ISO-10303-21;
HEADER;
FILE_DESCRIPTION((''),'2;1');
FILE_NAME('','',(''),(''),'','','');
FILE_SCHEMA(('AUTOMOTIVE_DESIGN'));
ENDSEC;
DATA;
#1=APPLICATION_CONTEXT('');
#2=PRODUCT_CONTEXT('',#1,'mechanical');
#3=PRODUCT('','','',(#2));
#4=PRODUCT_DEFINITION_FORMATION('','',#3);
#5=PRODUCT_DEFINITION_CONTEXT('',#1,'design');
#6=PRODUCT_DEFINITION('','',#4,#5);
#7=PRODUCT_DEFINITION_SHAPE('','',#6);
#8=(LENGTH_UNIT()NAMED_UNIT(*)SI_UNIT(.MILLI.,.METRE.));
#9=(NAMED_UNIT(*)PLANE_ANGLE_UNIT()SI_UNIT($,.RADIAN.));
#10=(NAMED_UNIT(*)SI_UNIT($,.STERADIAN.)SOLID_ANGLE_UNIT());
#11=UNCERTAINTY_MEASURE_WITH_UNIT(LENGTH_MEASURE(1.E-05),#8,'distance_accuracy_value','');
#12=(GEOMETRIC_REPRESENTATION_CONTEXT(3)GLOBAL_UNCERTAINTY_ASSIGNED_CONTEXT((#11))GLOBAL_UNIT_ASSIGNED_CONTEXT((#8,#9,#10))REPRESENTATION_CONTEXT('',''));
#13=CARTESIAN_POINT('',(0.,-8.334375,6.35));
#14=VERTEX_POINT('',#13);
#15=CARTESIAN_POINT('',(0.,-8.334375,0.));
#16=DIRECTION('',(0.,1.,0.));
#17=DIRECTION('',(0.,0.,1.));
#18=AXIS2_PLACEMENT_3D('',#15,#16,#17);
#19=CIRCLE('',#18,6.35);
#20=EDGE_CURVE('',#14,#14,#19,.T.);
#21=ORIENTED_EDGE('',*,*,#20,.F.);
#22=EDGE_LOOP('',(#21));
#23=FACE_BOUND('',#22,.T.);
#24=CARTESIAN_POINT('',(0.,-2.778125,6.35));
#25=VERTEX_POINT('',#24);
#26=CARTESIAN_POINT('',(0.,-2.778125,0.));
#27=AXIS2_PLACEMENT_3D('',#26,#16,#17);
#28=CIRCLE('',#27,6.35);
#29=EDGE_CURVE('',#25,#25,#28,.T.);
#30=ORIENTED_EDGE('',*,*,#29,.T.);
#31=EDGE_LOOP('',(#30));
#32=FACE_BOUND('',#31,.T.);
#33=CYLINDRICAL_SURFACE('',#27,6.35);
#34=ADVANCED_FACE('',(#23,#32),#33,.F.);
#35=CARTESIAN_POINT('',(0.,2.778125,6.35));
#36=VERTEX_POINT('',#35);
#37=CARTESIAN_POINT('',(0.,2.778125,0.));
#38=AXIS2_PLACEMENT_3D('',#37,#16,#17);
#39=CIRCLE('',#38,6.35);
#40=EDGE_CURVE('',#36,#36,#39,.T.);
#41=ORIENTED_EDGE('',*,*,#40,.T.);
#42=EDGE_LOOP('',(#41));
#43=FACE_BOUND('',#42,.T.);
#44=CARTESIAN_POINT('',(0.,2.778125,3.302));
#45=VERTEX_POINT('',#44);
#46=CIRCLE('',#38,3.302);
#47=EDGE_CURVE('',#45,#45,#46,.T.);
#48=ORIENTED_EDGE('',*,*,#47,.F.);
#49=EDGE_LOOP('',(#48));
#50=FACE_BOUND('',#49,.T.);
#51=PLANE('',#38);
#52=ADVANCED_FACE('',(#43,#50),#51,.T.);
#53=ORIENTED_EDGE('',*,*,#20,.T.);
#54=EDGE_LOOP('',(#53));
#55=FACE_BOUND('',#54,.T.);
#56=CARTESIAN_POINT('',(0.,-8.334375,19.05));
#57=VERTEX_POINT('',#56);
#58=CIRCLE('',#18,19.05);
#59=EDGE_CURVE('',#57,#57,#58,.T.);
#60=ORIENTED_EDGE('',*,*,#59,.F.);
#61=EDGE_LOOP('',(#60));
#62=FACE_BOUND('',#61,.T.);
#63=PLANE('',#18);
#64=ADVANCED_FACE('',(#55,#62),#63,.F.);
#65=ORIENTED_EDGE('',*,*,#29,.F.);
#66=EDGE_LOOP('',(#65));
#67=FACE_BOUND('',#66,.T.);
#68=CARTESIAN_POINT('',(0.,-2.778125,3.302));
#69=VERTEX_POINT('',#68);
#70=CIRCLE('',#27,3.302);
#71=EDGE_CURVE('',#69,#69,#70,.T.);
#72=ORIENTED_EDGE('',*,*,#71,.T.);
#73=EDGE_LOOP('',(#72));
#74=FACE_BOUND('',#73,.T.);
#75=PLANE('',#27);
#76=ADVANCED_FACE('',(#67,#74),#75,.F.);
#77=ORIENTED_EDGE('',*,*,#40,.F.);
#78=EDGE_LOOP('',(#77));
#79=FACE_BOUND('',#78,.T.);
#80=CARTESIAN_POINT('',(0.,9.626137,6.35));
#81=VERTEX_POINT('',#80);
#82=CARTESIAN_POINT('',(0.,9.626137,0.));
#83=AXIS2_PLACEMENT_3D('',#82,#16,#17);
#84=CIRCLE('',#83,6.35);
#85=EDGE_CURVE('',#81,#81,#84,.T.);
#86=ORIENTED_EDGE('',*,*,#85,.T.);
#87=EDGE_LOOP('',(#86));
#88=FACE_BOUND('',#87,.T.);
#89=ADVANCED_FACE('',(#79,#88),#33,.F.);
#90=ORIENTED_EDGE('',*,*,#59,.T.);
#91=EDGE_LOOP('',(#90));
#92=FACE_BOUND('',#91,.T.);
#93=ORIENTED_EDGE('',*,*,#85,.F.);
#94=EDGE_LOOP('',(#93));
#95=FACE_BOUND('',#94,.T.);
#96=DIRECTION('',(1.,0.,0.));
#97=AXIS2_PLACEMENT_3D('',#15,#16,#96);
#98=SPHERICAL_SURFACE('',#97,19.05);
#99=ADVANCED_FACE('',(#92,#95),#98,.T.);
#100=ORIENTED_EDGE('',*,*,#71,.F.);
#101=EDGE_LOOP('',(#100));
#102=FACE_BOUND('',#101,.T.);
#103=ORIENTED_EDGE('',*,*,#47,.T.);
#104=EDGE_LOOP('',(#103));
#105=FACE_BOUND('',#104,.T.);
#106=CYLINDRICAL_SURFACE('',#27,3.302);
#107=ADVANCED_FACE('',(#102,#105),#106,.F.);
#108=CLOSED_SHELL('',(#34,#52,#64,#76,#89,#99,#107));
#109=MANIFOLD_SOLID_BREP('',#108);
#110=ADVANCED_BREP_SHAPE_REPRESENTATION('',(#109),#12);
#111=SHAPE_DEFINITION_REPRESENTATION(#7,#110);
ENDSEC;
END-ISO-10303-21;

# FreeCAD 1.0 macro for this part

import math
import FreeCAD as App
import Part
import Sketcher
from FreeCAD import Vector
Q = App.Units.Quantity

doc = App.newDocument("Part")
body = doc.addObject("PartDesign::Body", "Body")

# Sketch on XY plane
sketch1 = body.newObject("Sketcher::SketchObject", "Sketch")
sketch1.AttachmentSupport = (doc.getObject("XY_Plane"), [""])
sketch1.MapMode = "FlatFace"
sketch1.addGeometry(Part.LineSegment(Vector(6.3, -2.8, 0), Vector(6.3, -8.3, 0)), False)
sketch1.addGeometry(Part.LineSegment(Vector(6.3, -8.3, 0), Vector(19.1, -8.3, 0)), False)
sketch1.addGeometry(Part.ArcOfCircle(Part.Circle(Vector(0, -8.3, 0), Vector(0, 0, 1), 19), math.radians(0), math.radians(71)), False)
sketch1.addGeometry(Part.LineSegment(Vector(6.3, 9.6, 0), Vector(6.3, 2.8, 0)), False)
sketch1.addGeometry(Part.LineSegment(Vector(6.3, 2.8, 0), Vector(3.3, 2.8, 0)), False)
sketch1.addGeometry(Part.LineSegment(Vector(3.3, 2.8, 0), Vector(3.3, -2.8, 0)), False)
sketch1.addGeometry(Part.LineSegment(Vector(3.3, -2.8, 0), Vector(6.3, -2.8, 0)), False)
sketch1.addConstraint(Sketcher.Constraint("Coincident", 0, 2, 1, 1))
sketch1.addConstraint(Sketcher.Constraint("Coincident", 1, 2, 2, 1))
sketch1.addConstraint(Sketcher.Constraint("Coincident", 2, 2, 3, 1))
sketch1.addConstraint(Sketcher.Constraint("Coincident", 3, 2, 4, 1))
sketch1.addConstraint(Sketcher.Constraint("Coincident", 4, 2, 5, 1))
sketch1.addConstraint(Sketcher.Constraint("Coincident", 5, 2, 6, 1))
sketch1.addConstraint(Sketcher.Constraint("Coincident", 6, 2, 0, 1))
sketch1.addConstraint(Sketcher.Constraint("Vertical", 0))
sketch1.addConstraint(Sketcher.Constraint("Horizontal", 1))
sketch1.addConstraint(Sketcher.Constraint("Vertical", 3))
sketch1.addConstraint(Sketcher.Constraint("Horizontal", 4))
sketch1.addConstraint(Sketcher.Constraint("Vertical", 5))
sketch1.addConstraint(Sketcher.Constraint("Horizontal", 6))
sketch1.addConstraint(Sketcher.Constraint("Symmetric", 3, 2, 6, 2, -1))
sketch1.addConstraint(Sketcher.Constraint("PointOnObject", 2, 3, -2))
sketch1.addConstraint(Sketcher.Constraint("Horizontal", 2, 3, 0, 2))
sketch1.addConstraint(Sketcher.Constraint("Equal", 0, 5))
sketch1.addConstraint(Sketcher.Constraint("Radius", 2, Q("0.75 in")))
sketch1.addConstraint(Sketcher.Constraint("DistanceX", 1, 1, 1, 2, Q("0.5 in")))
sketch1.addConstraint(Sketcher.Constraint("DistanceX", 4, 2, 4, 1, Q("0.12 in")))
sketch1.addConstraint(Sketcher.Constraint("DistanceY", 0, 2, 0, 1, Q("0.21875 in")))
revolution = body.newObject("PartDesign::Revolution", "Revolution")
revolution.Profile = sketch1
revolution.ReferenceAxis = (sketch1, ["V_Axis"])
revolution.Angle = 360

doc.recompute()
